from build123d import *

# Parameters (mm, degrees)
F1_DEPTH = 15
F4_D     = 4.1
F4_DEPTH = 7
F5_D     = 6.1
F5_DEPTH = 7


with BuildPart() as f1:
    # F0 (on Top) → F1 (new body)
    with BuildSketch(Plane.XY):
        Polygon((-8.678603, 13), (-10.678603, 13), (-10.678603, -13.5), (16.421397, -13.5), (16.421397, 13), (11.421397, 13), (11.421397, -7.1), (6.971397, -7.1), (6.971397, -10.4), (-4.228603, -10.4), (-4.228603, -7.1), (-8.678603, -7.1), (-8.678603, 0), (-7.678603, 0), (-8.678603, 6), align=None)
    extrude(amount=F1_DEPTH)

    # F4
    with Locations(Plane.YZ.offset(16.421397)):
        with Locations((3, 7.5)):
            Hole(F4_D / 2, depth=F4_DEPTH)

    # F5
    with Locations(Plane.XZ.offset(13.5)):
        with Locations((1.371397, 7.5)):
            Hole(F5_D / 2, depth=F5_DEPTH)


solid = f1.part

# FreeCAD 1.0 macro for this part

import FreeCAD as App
import Part
import Sketcher

V = App.Vector
Q = App.Units.Quantity

doc = App.newDocument("Part")
body = doc.addObject("PartDesign::Body", "Body")

# Sketch on XY plane
sketch1 = doc.addObject("Sketcher::SketchObject", "Sketch")
body.addObject(sketch1)
sketch1.AttachmentSupport = (doc.XY_Plane, [""])
sketch1.MapMode = "FlatFace"
sketch1.addGeometry(Part.LineSegment(V(-8.7, 13, 0), V(-10.7, 13, 0)), False)
sketch1.addGeometry(Part.LineSegment(V(-10.7, 13, 0), V(-10.7, -13.5, 0)), False)
sketch1.addGeometry(Part.LineSegment(V(-10.7, -13.5, 0), V(16.4, -13.5, 0)), False)
sketch1.addGeometry(Part.LineSegment(V(16.4, -13.5, 0), V(16.4, 13, 0)), False)
sketch1.addGeometry(Part.LineSegment(V(16.4, 13, 0), V(11.4, 13, 0)), False)
sketch1.addGeometry(Part.LineSegment(V(11.4, 13, 0), V(11.4, -7.1, 0)), False)
sketch1.addGeometry(Part.LineSegment(V(11.4, -7.1, 0), V(7, -7.1, 0)), False)
sketch1.addGeometry(Part.LineSegment(V(7, -7.1, 0), V(7, -10.4, 0)), False)
sketch1.addGeometry(Part.LineSegment(V(7, -10.4, 0), V(-4.2, -10.4, 0)), False)
sketch1.addGeometry(Part.LineSegment(V(-4.2, -10.4, 0), V(-4.2, -7.1, 0)), False)
sketch1.addGeometry(Part.LineSegment(V(-4.2, -7.1, 0), V(-8.7, -7.1, 0)), False)
sketch1.addGeometry(Part.LineSegment(V(-8.7, -7.1, 0), V(-8.7, 0, 0)), False)
sketch1.addGeometry(Part.LineSegment(V(-8.7, 0, 0), V(-7.7, 0, 0)), False)
sketch1.addGeometry(Part.LineSegment(V(-7.7, 0, 0), V(-8.7, 6, 0)), False)
sketch1.addGeometry(Part.LineSegment(V(-8.7, 6, 0), V(-8.7, 13, 0)), False)
sketch1.addConstraint(Sketcher.Constraint("Coincident", 0, 2, 1, 1))
sketch1.addConstraint(Sketcher.Constraint("Coincident", 1, 2, 2, 1))
sketch1.addConstraint(Sketcher.Constraint("Coincident", 2, 2, 3, 1))
sketch1.addConstraint(Sketcher.Constraint("Coincident", 3, 2, 4, 1))
sketch1.addConstraint(Sketcher.Constraint("Coincident", 4, 2, 5, 1))
sketch1.addConstraint(Sketcher.Constraint("Coincident", 5, 2, 6, 1))
sketch1.addConstraint(Sketcher.Constraint("Coincident", 6, 2, 7, 1))
sketch1.addConstraint(Sketcher.Constraint("Coincident", 7, 2, 8, 1))
sketch1.addConstraint(Sketcher.Constraint("Coincident", 8, 2, 9, 1))
sketch1.addConstraint(Sketcher.Constraint("Coincident", 9, 2, 10, 1))
sketch1.addConstraint(Sketcher.Constraint("Coincident", 10, 2, 11, 1))
sketch1.addConstraint(Sketcher.Constraint("Coincident", 11, 2, 12, 1))
sketch1.addConstraint(Sketcher.Constraint("Coincident", 12, 2, 13, 1))
sketch1.addConstraint(Sketcher.Constraint("Coincident", 13, 2, 14, 1))
sketch1.addConstraint(Sketcher.Constraint("Coincident", 14, 2, 0, 1))
sketch1.addConstraint(Sketcher.Constraint("Horizontal", 0))
sketch1.addConstraint(Sketcher.Constraint("Vertical", 1))
sketch1.addConstraint(Sketcher.Constraint("Horizontal", 2))
sketch1.addConstraint(Sketcher.Constraint("Vertical", 3))
sketch1.addConstraint(Sketcher.Constraint("Horizontal", 4))
sketch1.addConstraint(Sketcher.Constraint("Vertical", 5))
sketch1.addConstraint(Sketcher.Constraint("Horizontal", 6))
sketch1.addConstraint(Sketcher.Constraint("Vertical", 7))
sketch1.addConstraint(Sketcher.Constraint("Horizontal", 8))
sketch1.addConstraint(Sketcher.Constraint("Vertical", 9))
sketch1.addConstraint(Sketcher.Constraint("Horizontal", 10))
sketch1.addConstraint(Sketcher.Constraint("Vertical", 11))
sketch1.addConstraint(Sketcher.Constraint("Horizontal", 12))
sketch1.addConstraint(Sketcher.Constraint("Vertical", 14))
sketch1.addConstraint(Sketcher.Constraint("PointOnObject", 11, 2, -1))
sketch1.addConstraint(Sketcher.Constraint("Horizontal", 0, 2, 3, 2))
sketch1.addConstraint(Sketcher.Constraint("Horizontal", 6, 2, 9, 2))
sketch1.addConstraint(Sketcher.Constraint("Vertical", 11, 2, 13, 2))
sketch1.addConstraint(Sketcher.Constraint("Equal", 6, 10))
sketch1.addConstraint(Sketcher.Constraint("DistanceX", 0, 2, 0, 1, Q("2 mm")))
sketch1.addConstraint(Sketcher.Constraint("DistanceX", 4, 2, 4, 1, Q("5 mm")))
sketch1.addConstraint(Sketcher.Constraint("DistanceX", 12, 1, 12, 2, Q("1 mm")))
sketch1.addConstraint(Sketcher.Constraint("DistanceY", 14, 1, 14, 2, Q("7 mm")))
sketch1.addConstraint(Sketcher.Constraint("DistanceX", 2, 1, 2, 2, Q("27.1 mm")))
sketch1.addConstraint(Sketcher.Constraint("DistanceX", 8, 2, 8, 1, Q("11.2 mm")))
sketch1.addConstraint(Sketcher.Constraint("DistanceY", 1, 2, 1, 1, Q("26.5 mm")))
sketch1.addConstraint(Sketcher.Constraint("DistanceY", 5, 2, 5, 1, Q("20.1 mm")))
sketch1.addConstraint(Sketcher.Constraint("DistanceY", 7, 2, 7, 1, Q("3.3 mm")))
sketch1.addConstraint(Sketcher.Constraint("DistanceY", 11, 1, 11, 2, Q("7.1 mm")))
sketch1.addConstraint(Sketcher.Constraint("DistanceX", 0, 2, -1, 1, Q("10.678603 mm")))
pad1 = doc.addObject("PartDesign::Pad", "Pad")
body.addObject(pad1)
pad1.Profile = sketch1
pad1.Length = 15

# Sketch on YZ plane
sketch2 = doc.addObject("Sketcher::SketchObject", "Sketch001")
body.addObject(sketch2)
sketch2.AttachmentSupport = (doc.YZ_Plane, [""])
sketch2.MapMode = "FlatFace"
sketch2.AttachmentOffset = App.Placement(V(0, 0, 16.421397), App.Rotation())
sketch2.addGeometry(Part.Circle(V(3, 7.5, 0), V(0, 0, 1), 2), False)
sketch2.addConstraint(Sketcher.Constraint("Diameter", 0, Q("4.1 mm")))
sketch2.addConstraint(Sketcher.Constraint("DistanceX", -1, 1, 0, 3, Q("3 mm")))
sketch2.addConstraint(Sketcher.Constraint("DistanceY", -1, 1, 0, 3, Q("7.5 mm")))
doc.recompute()
hole = doc.addObject("PartDesign::Hole", "Hole")
body.addObject(hole)
hole.Profile = sketch2
hole.ThreadType = "None"
hole.Diameter = 4.1
hole.DepthType = "Dimension"
hole.Depth = 7
hole.DrillPoint = "Flat"

# Sketch on XZ plane
sketch3 = doc.addObject("Sketcher::SketchObject", "Sketch002")
body.addObject(sketch3)
sketch3.AttachmentSupport = (doc.XZ_Plane, [""])
sketch3.MapMode = "FlatFace"
sketch3.AttachmentOffset = App.Placement(V(0, 0, 13.5), App.Rotation())
sketch3.addGeometry(Part.Circle(V(1.4, 7.5, 0), V(0, 0, 1), 3), False)
sketch3.addConstraint(Sketcher.Constraint("Diameter", 0, Q("6.1 mm")))
sketch3.addConstraint(Sketcher.Constraint("DistanceY", -1, 1, 0, 3, Q("7.5 mm")))
sketch3.addConstraint(Sketcher.Constraint("DistanceX", -1, 1, 0, 3, Q("1.371397 mm")))
doc.recompute()
hole2 = doc.addObject("PartDesign::Hole", "Hole001")
body.addObject(hole2)
hole2.Profile = sketch3
hole2.ThreadType = "None"
hole2.Diameter = 6.1
hole2.DepthType = "Dimension"
hole2.Depth = 7
hole2.DrillPoint = "Flat"

doc.recompute()
